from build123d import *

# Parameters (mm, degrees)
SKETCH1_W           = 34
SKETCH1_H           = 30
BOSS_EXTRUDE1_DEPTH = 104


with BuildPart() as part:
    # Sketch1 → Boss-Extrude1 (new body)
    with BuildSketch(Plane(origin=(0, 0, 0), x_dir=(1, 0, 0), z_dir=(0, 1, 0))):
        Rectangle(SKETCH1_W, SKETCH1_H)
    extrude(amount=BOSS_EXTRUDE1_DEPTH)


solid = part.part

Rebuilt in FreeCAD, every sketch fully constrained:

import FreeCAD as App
import Part
import Sketcher

V = App.Vector

doc = App.newDocument("Part")
body = doc.addObject("PartDesign::Body", "Body")

# Sketch on XZ plane
sketch1 = body.newObject("Sketcher::SketchObject", "Sketch")
sketch1.AttachmentSupport = (doc.getObject("XZ_Plane"), [""])
sketch1.MapMode = "FlatFace"
sketch1.addGeometry([
    Part.LineSegment(V(-17, -15, 0), V(-17, 15, 0)),
    Part.LineSegment(V(-17, 15, 0), V(17, 15, 0)),
    Part.LineSegment(V(17, 15, 0), V(17, -15, 0)),
    Part.LineSegment(V(17, -15, 0), V(-17, -15, 0)),
], False)
sketch1.addConstraint([
    Sketcher.Constraint("Coincident", 0, 2, 1, 1),
    Sketcher.Constraint("Coincident", 1, 2, 2, 1),
    Sketcher.Constraint("Coincident", 2, 2, 3, 1),
    Sketcher.Constraint("Coincident", 3, 2, 0, 1),
    Sketcher.Constraint("Vertical", 0),
    Sketcher.Constraint("Horizontal", 1),
    Sketcher.Constraint("Vertical", 2),
    Sketcher.Constraint("Horizontal", 3),
    Sketcher.Constraint("Symmetric", 0, 2, 2, 2, -1, 1),
    Sketcher.Constraint("DistanceX", 1, 1, 1, 2, 34.0),
    Sketcher.Constraint("DistanceY", 0, 1, 0, 2, 30.0),
])
pad1 = body.newObject("PartDesign::Pad", "Pad")
pad1.Profile = sketch1
pad1.Length = 104
pad1.Reversed = True

doc.recompute()
